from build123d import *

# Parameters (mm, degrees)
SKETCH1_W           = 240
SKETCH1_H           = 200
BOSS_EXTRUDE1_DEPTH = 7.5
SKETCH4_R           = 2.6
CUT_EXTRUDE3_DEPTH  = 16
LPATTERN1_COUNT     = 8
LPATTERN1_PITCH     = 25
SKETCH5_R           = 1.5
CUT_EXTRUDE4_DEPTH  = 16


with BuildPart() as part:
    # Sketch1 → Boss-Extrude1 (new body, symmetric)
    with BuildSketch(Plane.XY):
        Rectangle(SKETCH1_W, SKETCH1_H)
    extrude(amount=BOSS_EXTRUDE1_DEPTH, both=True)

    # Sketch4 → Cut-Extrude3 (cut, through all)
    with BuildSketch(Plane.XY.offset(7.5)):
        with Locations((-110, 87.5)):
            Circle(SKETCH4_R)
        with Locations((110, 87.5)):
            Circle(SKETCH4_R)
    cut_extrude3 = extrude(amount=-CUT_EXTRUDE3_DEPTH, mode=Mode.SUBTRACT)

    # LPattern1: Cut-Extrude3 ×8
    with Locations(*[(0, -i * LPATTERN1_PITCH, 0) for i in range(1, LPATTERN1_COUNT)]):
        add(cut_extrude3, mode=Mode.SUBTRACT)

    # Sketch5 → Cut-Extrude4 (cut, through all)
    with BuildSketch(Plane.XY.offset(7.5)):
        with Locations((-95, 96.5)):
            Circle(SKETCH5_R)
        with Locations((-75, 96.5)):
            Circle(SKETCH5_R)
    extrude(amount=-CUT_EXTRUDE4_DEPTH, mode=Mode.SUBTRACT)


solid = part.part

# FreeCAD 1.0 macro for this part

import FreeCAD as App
import Part
import Sketcher
from FreeCAD import Vector
Q = App.Units.Quantity

doc = App.newDocument("Part")
body = doc.addObject("PartDesign::Body", "Body")

# Sketch on XY plane
sketch1 = doc.addObject("Sketcher::SketchObject", "Sketch")
body.addObject(sketch1)
sketch1.AttachmentSupport = (doc.XY_Plane, [""])
sketch1.MapMode = "FlatFace"
sketch1.addGeometry(Part.LineSegment(Vector(-120, 100, 0), Vector(-120, -100, 0)), False)
sketch1.addGeometry(Part.LineSegment(Vector(-120, -100, 0), Vector(120, -100, 0)), False)
sketch1.addGeometry(Part.LineSegment(Vector(120, -100, 0), Vector(120, 100, 0)), False)
sketch1.addGeometry(Part.LineSegment(Vector(120, 100, 0), Vector(-120, 100, 0)), False)
sketch1.addConstraint(Sketcher.Constraint("Coincident", 0, 2, 1, 1))
sketch1.addConstraint(Sketcher.Constraint("Coincident", 1, 2, 2, 1))
sketch1.addConstraint(Sketcher.Constraint("Coincident", 2, 2, 3, 1))
sketch1.addConstraint(Sketcher.Constraint("Coincident", 3, 2, 0, 1))
sketch1.addConstraint(Sketcher.Constraint("Vertical", 0))
sketch1.addConstraint(Sketcher.Constraint("Horizontal", 1))
sketch1.addConstraint(Sketcher.Constraint("Vertical", 2))
sketch1.addConstraint(Sketcher.Constraint("Horizontal", 3))
sketch1.addConstraint(Sketcher.Constraint("Symmetric", 0, 2, 2, 2, -1, 1))
sketch1.addConstraint(Sketcher.Constraint("DistanceX", 1, 1, 1, 2, Q("240 mm")))
sketch1.addConstraint(Sketcher.Constraint("DistanceY", 0, 2, 0, 1, Q("200 mm")))
pad1 = doc.addObject("PartDesign::Pad", "Pad")
body.addObject(pad1)
pad1.Profile = sketch1
pad1.Length = 15
pad1.Midplane = True

# Sketch on XY plane
sketch2 = doc.addObject("Sketcher::SketchObject", "Sketch001")
body.addObject(sketch2)
sketch2.AttachmentSupport = (doc.XY_Plane, [""])
sketch2.MapMode = "FlatFace"
sketch2.AttachmentOffset = App.Placement(Vector(0, 0, 7.5), App.Rotation())
sketch2.addGeometry(Part.Circle(Vector(-110, 87.5, 0), Vector(0, 0, 1), 2.6), False)
sketch2.addGeometry(Part.Circle(Vector(110, 87.5, 0), Vector(0, 0, 1), 2.6), False)
sketch2.addConstraint(Sketcher.Constraint("Equal", 0, 1))
sketch2.addConstraint(Sketcher.Constraint("Symmetric", 0, 3, 1, 3, -2))
sketch2.addConstraint(Sketcher.Constraint("Diameter", 0, Q("5.2 mm")))
sketch2.addConstraint(Sketcher.Constraint("DistanceX", 0, 3, -1, 1, Q("110 mm")))
sketch2.addConstraint(Sketcher.Constraint("DistanceY", -1, 1, 0, 3, Q("87.5 mm")))
pocket1 = doc.addObject("PartDesign::Pocket", "Pocket")
body.addObject(pocket1)
pocket1.Profile = sketch2
pocket1.Type = "ThroughAll"
doc.recompute()

linearpattern = doc.addObject("PartDesign::LinearPattern", "LinearPattern")
body.addObject(linearpattern)
linearpattern.Originals = [pocket1]
linearpattern.Direction = (doc.Y_Axis, [""])
linearpattern.Mode = "offset"
linearpattern.Offset = 25
linearpattern.Occurrences = 8
linearpattern.Reversed = True
body.Tip = linearpattern

# Sketch on XY plane
sketch3 = doc.addObject("Sketcher::SketchObject", "Sketch002")
body.addObject(sketch3)
sketch3.AttachmentSupport = (doc.XY_Plane, [""])
sketch3.MapMode = "FlatFace"
sketch3.AttachmentOffset = App.Placement(Vector(0, 0, 7.5), App.Rotation())
sketch3.addGeometry(Part.Circle(Vector(-95, 96.5, 0), Vector(0, 0, 1), 1.5), False)
sketch3.addGeometry(Part.Circle(Vector(-75, 96.5, 0), Vector(0, 0, 1), 1.5), False)
sketch3.addConstraint(Sketcher.Constraint("Equal", 0, 1))
sketch3.addConstraint(Sketcher.Constraint("Horizontal", 0, 3, 1, 3))
sketch3.addConstraint(Sketcher.Constraint("Diameter", 0, Q("3 mm")))
sketch3.addConstraint(Sketcher.Constraint("DistanceX", 0, 3, -1, 1, Q("95 mm")))
sketch3.addConstraint(Sketcher.Constraint("DistanceX", 1, 3, -1, 1, Q("75 mm")))
sketch3.addConstraint(Sketcher.Constraint("DistanceY", -1, 1, 0, 3, Q("96.5 mm")))
pocket2 = doc.addObject("PartDesign::Pocket", "Pocket001")
body.addObject(pocket2)
pocket2.Profile = sketch3
pocket2.Type = "ThroughAll"

doc.recompute()
